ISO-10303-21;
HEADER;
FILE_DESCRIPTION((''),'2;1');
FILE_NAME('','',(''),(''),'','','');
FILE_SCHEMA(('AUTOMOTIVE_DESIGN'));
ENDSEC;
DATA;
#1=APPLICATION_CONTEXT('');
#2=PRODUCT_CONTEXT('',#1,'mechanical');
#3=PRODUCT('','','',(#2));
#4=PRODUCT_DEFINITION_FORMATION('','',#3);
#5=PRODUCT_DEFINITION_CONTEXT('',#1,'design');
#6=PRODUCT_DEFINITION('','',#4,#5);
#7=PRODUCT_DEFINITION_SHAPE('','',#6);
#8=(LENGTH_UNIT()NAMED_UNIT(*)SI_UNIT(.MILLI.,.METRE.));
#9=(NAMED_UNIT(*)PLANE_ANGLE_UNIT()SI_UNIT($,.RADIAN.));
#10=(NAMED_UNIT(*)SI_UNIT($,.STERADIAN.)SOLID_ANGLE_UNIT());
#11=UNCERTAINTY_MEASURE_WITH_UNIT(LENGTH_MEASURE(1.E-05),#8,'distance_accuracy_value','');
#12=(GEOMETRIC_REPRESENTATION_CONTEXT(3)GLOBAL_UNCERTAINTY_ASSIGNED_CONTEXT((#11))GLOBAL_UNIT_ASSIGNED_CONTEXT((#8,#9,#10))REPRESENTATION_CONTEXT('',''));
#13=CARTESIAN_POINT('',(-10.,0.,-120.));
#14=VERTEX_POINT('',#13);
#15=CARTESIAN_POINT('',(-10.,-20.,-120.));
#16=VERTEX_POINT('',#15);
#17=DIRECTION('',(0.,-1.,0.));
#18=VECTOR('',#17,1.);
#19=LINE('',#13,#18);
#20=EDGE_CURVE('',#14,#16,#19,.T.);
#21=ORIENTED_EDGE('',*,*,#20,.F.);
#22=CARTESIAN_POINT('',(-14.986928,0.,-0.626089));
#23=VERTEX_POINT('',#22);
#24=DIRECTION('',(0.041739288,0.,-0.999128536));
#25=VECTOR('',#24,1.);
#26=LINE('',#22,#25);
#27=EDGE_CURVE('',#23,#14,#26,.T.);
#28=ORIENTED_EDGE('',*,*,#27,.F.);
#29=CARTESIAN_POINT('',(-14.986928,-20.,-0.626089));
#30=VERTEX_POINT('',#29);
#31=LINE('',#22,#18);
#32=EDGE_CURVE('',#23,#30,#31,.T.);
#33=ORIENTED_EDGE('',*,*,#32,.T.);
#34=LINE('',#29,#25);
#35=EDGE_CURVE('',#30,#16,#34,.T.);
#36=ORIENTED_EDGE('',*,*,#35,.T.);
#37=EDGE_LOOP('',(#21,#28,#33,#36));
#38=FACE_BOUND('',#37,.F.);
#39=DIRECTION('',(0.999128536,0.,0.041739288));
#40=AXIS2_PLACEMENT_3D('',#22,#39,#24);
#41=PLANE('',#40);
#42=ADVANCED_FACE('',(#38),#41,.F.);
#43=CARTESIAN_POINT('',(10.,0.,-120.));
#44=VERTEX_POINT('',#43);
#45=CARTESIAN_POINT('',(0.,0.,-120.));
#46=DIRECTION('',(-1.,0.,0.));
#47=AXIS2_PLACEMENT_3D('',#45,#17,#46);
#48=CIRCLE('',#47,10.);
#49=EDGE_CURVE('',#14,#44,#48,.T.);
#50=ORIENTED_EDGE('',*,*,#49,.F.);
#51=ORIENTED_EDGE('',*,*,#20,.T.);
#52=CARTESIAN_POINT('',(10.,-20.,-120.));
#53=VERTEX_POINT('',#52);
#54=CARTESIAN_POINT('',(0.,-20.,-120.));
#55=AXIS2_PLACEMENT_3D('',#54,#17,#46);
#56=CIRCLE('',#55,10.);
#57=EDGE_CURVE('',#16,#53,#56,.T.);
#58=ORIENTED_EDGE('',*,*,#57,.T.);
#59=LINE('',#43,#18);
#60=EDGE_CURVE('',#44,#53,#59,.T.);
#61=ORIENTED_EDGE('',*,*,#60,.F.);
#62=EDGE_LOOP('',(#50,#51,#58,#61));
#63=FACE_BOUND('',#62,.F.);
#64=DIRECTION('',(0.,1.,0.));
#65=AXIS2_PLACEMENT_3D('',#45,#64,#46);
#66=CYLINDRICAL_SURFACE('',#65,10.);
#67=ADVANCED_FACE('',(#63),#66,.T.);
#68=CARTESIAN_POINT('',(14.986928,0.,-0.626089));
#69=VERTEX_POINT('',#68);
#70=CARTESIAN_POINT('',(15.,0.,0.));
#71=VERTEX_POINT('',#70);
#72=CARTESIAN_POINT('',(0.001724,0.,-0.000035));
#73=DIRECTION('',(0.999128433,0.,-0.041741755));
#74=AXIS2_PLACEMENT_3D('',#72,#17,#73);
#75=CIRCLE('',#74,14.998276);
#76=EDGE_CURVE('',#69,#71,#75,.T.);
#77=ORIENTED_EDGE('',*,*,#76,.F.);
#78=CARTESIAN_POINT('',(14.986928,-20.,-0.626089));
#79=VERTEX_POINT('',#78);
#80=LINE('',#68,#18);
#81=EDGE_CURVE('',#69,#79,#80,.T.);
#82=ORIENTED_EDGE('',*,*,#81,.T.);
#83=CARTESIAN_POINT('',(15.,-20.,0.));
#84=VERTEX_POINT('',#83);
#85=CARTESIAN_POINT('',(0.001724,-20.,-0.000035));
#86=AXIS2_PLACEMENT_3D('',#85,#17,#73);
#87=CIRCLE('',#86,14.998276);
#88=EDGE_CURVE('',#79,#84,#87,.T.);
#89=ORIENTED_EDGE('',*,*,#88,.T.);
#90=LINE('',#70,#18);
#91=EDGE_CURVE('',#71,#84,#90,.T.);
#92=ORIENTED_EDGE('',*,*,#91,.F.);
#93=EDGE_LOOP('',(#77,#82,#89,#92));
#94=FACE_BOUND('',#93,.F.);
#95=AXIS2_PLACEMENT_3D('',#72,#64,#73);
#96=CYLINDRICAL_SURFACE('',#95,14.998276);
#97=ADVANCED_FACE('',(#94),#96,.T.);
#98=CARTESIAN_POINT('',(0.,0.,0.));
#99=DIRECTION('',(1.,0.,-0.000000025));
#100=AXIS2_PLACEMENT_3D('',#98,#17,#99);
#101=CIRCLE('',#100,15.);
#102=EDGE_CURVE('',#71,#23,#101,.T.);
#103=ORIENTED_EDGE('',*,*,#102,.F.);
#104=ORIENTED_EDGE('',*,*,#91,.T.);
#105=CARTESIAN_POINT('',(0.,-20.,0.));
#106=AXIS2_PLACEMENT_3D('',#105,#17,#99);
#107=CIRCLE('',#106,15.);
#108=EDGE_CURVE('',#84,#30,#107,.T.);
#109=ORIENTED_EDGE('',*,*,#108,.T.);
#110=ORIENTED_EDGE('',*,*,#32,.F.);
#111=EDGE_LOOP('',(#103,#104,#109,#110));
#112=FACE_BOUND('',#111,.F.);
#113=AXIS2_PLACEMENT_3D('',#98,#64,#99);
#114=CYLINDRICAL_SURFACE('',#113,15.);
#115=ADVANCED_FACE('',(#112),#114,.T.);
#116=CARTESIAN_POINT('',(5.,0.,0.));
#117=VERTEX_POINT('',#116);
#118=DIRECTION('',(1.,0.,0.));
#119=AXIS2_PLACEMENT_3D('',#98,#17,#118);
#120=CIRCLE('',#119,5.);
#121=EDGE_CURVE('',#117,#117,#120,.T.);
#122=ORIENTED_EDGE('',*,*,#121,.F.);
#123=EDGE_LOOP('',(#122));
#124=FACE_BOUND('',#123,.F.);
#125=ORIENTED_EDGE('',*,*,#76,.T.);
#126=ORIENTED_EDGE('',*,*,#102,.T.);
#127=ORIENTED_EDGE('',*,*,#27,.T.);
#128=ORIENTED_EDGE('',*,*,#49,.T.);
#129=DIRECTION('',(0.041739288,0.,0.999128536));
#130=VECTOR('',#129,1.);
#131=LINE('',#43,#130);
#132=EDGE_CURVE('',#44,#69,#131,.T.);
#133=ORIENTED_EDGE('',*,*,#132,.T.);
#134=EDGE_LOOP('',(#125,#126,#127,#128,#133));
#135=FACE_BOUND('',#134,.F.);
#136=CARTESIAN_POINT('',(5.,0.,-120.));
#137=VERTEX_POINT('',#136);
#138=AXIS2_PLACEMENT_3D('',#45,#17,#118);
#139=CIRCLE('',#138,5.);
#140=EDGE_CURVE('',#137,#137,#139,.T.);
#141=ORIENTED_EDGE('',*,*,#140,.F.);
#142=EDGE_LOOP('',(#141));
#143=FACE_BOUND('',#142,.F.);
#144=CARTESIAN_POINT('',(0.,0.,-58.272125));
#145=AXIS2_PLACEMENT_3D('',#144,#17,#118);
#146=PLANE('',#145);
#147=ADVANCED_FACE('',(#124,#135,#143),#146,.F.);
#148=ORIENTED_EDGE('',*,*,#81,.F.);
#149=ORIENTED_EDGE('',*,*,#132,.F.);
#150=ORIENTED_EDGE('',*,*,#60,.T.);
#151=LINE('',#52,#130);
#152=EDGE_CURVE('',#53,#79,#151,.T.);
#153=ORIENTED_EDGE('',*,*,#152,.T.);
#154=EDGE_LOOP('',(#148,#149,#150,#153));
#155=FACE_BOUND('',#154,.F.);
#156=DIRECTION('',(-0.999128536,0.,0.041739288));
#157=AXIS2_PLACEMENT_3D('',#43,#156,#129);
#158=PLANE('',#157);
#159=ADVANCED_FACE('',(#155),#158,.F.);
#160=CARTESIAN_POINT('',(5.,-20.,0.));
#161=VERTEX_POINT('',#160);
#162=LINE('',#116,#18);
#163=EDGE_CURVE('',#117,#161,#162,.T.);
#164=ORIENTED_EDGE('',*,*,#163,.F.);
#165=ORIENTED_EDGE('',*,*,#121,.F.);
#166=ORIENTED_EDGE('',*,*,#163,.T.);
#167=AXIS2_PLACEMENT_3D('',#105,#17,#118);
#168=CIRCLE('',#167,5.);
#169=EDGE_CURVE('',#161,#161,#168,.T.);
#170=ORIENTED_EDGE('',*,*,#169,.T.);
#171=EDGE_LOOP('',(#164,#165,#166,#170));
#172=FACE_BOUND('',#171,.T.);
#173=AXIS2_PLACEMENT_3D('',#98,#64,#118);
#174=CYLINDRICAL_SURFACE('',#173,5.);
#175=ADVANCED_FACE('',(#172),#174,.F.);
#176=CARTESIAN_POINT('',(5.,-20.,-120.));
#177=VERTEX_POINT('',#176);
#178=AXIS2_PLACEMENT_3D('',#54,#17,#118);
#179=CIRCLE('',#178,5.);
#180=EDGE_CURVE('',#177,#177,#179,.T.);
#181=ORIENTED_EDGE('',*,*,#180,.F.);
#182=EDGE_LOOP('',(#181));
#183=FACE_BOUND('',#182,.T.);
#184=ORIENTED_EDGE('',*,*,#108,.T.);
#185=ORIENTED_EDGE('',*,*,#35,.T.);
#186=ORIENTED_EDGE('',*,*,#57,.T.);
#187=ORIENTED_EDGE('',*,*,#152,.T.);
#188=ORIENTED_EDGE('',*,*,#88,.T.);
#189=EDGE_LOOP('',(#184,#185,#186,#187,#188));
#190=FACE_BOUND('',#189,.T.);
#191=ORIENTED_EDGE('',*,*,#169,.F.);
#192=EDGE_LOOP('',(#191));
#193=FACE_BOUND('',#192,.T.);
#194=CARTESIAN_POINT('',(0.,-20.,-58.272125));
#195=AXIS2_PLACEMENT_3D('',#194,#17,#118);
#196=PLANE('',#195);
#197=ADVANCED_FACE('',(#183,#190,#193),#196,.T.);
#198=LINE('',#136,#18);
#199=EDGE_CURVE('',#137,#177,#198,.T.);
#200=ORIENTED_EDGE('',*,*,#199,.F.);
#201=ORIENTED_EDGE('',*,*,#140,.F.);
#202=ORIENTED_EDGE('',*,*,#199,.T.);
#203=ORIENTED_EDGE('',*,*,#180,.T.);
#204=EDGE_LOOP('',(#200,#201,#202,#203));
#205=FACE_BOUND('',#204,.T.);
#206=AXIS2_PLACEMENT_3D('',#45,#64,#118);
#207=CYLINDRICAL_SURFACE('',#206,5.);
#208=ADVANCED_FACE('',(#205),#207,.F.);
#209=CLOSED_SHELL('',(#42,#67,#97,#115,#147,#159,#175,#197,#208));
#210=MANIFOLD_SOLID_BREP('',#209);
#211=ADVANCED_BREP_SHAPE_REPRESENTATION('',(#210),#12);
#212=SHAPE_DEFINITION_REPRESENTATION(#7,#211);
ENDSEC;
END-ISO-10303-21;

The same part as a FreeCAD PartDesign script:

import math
import FreeCAD as App
import Part
import Sketcher
from FreeCAD import Vector

doc = App.newDocument("Part")
body = doc.addObject("PartDesign::Body", "Body")

# Sketch on XZ plane
sketch1 = body.newObject("Sketcher::SketchObject", "Sketch")
sketch1.AttachmentSupport = (doc.getObject("XZ_Plane"), [""])
sketch1.MapMode = "FlatFace"
sketch1.addGeometry([
    Part.LineSegment(Vector(-15, -0.6, 0), Vector(-10, -120, 0)),  # 0
    Part.ArcOfCircle(Part.Circle(Vector(0, -120, 0), Vector(0, 0, 1), 10), math.radians(180), math.radians(360)),  # 1
    Part.LineSegment(Vector(10, -120, 0), Vector(15, -0.6, 0)),  # 2
    Part.ArcOfCircle(Part.Circle(Vector(0, 0, 0), Vector(0, 0, 1), 15), math.radians(-2.39), math.radians(0)),  # 3
    Part.ArcOfCircle(Part.Circle(Vector(0, 0, 0), Vector(0, 0, 1), 15), math.radians(0), math.radians(182)),  # 4
    Part.Circle(Vector(0, -120, 0), Vector(0, 0, 1), 5),  # 5
    Part.Circle(Vector(0, 0, 0), Vector(0, 0, 1), 5),  # 6
], False)
sketch1.addConstraint([
    Sketcher.Constraint("Coincident", 0, 2, 1, 1),
    Sketcher.Constraint("Coincident", 1, 2, 2, 1),
    Sketcher.Constraint("Coincident", 2, 2, 3, 1),
    Sketcher.Constraint("Coincident", 3, 2, 4, 1),
    Sketcher.Constraint("Tangent", 4, 2, 0, 1),
    Sketcher.Constraint("Coincident", 4, 3, -1, 1),
    Sketcher.Constraint("Coincident", 6, 3, -1, 1),
    Sketcher.Constraint("Coincident", 5, 3, 1, 3),
    Sketcher.Constraint("Equal", 5, 6),
    Sketcher.Constraint("Symmetric", 0, 2, 1, 2, -2),
    Sketcher.Constraint("Symmetric", 2, 2, 4, 2, -2),
    Sketcher.Constraint("PointOnObject", 3, 2, -1),
    Sketcher.Constraint("Horizontal", 5, 3, 0, 2),
    Sketcher.Constraint("Diameter", 5, 10.0),
    Sketcher.Constraint("Radius", 1, 10.0),
    Sketcher.Constraint("Radius", 4, 15.0),
    Sketcher.Constraint("DistanceY", 1, 3, -1, 1, 120.0),
    Sketcher.Constraint("Radius", 3, 14.998276),
])
pad1 = body.newObject("PartDesign::Pad", "Pad")
pad1.Profile = sketch1
pad1.Length = 20

doc.recompute()
